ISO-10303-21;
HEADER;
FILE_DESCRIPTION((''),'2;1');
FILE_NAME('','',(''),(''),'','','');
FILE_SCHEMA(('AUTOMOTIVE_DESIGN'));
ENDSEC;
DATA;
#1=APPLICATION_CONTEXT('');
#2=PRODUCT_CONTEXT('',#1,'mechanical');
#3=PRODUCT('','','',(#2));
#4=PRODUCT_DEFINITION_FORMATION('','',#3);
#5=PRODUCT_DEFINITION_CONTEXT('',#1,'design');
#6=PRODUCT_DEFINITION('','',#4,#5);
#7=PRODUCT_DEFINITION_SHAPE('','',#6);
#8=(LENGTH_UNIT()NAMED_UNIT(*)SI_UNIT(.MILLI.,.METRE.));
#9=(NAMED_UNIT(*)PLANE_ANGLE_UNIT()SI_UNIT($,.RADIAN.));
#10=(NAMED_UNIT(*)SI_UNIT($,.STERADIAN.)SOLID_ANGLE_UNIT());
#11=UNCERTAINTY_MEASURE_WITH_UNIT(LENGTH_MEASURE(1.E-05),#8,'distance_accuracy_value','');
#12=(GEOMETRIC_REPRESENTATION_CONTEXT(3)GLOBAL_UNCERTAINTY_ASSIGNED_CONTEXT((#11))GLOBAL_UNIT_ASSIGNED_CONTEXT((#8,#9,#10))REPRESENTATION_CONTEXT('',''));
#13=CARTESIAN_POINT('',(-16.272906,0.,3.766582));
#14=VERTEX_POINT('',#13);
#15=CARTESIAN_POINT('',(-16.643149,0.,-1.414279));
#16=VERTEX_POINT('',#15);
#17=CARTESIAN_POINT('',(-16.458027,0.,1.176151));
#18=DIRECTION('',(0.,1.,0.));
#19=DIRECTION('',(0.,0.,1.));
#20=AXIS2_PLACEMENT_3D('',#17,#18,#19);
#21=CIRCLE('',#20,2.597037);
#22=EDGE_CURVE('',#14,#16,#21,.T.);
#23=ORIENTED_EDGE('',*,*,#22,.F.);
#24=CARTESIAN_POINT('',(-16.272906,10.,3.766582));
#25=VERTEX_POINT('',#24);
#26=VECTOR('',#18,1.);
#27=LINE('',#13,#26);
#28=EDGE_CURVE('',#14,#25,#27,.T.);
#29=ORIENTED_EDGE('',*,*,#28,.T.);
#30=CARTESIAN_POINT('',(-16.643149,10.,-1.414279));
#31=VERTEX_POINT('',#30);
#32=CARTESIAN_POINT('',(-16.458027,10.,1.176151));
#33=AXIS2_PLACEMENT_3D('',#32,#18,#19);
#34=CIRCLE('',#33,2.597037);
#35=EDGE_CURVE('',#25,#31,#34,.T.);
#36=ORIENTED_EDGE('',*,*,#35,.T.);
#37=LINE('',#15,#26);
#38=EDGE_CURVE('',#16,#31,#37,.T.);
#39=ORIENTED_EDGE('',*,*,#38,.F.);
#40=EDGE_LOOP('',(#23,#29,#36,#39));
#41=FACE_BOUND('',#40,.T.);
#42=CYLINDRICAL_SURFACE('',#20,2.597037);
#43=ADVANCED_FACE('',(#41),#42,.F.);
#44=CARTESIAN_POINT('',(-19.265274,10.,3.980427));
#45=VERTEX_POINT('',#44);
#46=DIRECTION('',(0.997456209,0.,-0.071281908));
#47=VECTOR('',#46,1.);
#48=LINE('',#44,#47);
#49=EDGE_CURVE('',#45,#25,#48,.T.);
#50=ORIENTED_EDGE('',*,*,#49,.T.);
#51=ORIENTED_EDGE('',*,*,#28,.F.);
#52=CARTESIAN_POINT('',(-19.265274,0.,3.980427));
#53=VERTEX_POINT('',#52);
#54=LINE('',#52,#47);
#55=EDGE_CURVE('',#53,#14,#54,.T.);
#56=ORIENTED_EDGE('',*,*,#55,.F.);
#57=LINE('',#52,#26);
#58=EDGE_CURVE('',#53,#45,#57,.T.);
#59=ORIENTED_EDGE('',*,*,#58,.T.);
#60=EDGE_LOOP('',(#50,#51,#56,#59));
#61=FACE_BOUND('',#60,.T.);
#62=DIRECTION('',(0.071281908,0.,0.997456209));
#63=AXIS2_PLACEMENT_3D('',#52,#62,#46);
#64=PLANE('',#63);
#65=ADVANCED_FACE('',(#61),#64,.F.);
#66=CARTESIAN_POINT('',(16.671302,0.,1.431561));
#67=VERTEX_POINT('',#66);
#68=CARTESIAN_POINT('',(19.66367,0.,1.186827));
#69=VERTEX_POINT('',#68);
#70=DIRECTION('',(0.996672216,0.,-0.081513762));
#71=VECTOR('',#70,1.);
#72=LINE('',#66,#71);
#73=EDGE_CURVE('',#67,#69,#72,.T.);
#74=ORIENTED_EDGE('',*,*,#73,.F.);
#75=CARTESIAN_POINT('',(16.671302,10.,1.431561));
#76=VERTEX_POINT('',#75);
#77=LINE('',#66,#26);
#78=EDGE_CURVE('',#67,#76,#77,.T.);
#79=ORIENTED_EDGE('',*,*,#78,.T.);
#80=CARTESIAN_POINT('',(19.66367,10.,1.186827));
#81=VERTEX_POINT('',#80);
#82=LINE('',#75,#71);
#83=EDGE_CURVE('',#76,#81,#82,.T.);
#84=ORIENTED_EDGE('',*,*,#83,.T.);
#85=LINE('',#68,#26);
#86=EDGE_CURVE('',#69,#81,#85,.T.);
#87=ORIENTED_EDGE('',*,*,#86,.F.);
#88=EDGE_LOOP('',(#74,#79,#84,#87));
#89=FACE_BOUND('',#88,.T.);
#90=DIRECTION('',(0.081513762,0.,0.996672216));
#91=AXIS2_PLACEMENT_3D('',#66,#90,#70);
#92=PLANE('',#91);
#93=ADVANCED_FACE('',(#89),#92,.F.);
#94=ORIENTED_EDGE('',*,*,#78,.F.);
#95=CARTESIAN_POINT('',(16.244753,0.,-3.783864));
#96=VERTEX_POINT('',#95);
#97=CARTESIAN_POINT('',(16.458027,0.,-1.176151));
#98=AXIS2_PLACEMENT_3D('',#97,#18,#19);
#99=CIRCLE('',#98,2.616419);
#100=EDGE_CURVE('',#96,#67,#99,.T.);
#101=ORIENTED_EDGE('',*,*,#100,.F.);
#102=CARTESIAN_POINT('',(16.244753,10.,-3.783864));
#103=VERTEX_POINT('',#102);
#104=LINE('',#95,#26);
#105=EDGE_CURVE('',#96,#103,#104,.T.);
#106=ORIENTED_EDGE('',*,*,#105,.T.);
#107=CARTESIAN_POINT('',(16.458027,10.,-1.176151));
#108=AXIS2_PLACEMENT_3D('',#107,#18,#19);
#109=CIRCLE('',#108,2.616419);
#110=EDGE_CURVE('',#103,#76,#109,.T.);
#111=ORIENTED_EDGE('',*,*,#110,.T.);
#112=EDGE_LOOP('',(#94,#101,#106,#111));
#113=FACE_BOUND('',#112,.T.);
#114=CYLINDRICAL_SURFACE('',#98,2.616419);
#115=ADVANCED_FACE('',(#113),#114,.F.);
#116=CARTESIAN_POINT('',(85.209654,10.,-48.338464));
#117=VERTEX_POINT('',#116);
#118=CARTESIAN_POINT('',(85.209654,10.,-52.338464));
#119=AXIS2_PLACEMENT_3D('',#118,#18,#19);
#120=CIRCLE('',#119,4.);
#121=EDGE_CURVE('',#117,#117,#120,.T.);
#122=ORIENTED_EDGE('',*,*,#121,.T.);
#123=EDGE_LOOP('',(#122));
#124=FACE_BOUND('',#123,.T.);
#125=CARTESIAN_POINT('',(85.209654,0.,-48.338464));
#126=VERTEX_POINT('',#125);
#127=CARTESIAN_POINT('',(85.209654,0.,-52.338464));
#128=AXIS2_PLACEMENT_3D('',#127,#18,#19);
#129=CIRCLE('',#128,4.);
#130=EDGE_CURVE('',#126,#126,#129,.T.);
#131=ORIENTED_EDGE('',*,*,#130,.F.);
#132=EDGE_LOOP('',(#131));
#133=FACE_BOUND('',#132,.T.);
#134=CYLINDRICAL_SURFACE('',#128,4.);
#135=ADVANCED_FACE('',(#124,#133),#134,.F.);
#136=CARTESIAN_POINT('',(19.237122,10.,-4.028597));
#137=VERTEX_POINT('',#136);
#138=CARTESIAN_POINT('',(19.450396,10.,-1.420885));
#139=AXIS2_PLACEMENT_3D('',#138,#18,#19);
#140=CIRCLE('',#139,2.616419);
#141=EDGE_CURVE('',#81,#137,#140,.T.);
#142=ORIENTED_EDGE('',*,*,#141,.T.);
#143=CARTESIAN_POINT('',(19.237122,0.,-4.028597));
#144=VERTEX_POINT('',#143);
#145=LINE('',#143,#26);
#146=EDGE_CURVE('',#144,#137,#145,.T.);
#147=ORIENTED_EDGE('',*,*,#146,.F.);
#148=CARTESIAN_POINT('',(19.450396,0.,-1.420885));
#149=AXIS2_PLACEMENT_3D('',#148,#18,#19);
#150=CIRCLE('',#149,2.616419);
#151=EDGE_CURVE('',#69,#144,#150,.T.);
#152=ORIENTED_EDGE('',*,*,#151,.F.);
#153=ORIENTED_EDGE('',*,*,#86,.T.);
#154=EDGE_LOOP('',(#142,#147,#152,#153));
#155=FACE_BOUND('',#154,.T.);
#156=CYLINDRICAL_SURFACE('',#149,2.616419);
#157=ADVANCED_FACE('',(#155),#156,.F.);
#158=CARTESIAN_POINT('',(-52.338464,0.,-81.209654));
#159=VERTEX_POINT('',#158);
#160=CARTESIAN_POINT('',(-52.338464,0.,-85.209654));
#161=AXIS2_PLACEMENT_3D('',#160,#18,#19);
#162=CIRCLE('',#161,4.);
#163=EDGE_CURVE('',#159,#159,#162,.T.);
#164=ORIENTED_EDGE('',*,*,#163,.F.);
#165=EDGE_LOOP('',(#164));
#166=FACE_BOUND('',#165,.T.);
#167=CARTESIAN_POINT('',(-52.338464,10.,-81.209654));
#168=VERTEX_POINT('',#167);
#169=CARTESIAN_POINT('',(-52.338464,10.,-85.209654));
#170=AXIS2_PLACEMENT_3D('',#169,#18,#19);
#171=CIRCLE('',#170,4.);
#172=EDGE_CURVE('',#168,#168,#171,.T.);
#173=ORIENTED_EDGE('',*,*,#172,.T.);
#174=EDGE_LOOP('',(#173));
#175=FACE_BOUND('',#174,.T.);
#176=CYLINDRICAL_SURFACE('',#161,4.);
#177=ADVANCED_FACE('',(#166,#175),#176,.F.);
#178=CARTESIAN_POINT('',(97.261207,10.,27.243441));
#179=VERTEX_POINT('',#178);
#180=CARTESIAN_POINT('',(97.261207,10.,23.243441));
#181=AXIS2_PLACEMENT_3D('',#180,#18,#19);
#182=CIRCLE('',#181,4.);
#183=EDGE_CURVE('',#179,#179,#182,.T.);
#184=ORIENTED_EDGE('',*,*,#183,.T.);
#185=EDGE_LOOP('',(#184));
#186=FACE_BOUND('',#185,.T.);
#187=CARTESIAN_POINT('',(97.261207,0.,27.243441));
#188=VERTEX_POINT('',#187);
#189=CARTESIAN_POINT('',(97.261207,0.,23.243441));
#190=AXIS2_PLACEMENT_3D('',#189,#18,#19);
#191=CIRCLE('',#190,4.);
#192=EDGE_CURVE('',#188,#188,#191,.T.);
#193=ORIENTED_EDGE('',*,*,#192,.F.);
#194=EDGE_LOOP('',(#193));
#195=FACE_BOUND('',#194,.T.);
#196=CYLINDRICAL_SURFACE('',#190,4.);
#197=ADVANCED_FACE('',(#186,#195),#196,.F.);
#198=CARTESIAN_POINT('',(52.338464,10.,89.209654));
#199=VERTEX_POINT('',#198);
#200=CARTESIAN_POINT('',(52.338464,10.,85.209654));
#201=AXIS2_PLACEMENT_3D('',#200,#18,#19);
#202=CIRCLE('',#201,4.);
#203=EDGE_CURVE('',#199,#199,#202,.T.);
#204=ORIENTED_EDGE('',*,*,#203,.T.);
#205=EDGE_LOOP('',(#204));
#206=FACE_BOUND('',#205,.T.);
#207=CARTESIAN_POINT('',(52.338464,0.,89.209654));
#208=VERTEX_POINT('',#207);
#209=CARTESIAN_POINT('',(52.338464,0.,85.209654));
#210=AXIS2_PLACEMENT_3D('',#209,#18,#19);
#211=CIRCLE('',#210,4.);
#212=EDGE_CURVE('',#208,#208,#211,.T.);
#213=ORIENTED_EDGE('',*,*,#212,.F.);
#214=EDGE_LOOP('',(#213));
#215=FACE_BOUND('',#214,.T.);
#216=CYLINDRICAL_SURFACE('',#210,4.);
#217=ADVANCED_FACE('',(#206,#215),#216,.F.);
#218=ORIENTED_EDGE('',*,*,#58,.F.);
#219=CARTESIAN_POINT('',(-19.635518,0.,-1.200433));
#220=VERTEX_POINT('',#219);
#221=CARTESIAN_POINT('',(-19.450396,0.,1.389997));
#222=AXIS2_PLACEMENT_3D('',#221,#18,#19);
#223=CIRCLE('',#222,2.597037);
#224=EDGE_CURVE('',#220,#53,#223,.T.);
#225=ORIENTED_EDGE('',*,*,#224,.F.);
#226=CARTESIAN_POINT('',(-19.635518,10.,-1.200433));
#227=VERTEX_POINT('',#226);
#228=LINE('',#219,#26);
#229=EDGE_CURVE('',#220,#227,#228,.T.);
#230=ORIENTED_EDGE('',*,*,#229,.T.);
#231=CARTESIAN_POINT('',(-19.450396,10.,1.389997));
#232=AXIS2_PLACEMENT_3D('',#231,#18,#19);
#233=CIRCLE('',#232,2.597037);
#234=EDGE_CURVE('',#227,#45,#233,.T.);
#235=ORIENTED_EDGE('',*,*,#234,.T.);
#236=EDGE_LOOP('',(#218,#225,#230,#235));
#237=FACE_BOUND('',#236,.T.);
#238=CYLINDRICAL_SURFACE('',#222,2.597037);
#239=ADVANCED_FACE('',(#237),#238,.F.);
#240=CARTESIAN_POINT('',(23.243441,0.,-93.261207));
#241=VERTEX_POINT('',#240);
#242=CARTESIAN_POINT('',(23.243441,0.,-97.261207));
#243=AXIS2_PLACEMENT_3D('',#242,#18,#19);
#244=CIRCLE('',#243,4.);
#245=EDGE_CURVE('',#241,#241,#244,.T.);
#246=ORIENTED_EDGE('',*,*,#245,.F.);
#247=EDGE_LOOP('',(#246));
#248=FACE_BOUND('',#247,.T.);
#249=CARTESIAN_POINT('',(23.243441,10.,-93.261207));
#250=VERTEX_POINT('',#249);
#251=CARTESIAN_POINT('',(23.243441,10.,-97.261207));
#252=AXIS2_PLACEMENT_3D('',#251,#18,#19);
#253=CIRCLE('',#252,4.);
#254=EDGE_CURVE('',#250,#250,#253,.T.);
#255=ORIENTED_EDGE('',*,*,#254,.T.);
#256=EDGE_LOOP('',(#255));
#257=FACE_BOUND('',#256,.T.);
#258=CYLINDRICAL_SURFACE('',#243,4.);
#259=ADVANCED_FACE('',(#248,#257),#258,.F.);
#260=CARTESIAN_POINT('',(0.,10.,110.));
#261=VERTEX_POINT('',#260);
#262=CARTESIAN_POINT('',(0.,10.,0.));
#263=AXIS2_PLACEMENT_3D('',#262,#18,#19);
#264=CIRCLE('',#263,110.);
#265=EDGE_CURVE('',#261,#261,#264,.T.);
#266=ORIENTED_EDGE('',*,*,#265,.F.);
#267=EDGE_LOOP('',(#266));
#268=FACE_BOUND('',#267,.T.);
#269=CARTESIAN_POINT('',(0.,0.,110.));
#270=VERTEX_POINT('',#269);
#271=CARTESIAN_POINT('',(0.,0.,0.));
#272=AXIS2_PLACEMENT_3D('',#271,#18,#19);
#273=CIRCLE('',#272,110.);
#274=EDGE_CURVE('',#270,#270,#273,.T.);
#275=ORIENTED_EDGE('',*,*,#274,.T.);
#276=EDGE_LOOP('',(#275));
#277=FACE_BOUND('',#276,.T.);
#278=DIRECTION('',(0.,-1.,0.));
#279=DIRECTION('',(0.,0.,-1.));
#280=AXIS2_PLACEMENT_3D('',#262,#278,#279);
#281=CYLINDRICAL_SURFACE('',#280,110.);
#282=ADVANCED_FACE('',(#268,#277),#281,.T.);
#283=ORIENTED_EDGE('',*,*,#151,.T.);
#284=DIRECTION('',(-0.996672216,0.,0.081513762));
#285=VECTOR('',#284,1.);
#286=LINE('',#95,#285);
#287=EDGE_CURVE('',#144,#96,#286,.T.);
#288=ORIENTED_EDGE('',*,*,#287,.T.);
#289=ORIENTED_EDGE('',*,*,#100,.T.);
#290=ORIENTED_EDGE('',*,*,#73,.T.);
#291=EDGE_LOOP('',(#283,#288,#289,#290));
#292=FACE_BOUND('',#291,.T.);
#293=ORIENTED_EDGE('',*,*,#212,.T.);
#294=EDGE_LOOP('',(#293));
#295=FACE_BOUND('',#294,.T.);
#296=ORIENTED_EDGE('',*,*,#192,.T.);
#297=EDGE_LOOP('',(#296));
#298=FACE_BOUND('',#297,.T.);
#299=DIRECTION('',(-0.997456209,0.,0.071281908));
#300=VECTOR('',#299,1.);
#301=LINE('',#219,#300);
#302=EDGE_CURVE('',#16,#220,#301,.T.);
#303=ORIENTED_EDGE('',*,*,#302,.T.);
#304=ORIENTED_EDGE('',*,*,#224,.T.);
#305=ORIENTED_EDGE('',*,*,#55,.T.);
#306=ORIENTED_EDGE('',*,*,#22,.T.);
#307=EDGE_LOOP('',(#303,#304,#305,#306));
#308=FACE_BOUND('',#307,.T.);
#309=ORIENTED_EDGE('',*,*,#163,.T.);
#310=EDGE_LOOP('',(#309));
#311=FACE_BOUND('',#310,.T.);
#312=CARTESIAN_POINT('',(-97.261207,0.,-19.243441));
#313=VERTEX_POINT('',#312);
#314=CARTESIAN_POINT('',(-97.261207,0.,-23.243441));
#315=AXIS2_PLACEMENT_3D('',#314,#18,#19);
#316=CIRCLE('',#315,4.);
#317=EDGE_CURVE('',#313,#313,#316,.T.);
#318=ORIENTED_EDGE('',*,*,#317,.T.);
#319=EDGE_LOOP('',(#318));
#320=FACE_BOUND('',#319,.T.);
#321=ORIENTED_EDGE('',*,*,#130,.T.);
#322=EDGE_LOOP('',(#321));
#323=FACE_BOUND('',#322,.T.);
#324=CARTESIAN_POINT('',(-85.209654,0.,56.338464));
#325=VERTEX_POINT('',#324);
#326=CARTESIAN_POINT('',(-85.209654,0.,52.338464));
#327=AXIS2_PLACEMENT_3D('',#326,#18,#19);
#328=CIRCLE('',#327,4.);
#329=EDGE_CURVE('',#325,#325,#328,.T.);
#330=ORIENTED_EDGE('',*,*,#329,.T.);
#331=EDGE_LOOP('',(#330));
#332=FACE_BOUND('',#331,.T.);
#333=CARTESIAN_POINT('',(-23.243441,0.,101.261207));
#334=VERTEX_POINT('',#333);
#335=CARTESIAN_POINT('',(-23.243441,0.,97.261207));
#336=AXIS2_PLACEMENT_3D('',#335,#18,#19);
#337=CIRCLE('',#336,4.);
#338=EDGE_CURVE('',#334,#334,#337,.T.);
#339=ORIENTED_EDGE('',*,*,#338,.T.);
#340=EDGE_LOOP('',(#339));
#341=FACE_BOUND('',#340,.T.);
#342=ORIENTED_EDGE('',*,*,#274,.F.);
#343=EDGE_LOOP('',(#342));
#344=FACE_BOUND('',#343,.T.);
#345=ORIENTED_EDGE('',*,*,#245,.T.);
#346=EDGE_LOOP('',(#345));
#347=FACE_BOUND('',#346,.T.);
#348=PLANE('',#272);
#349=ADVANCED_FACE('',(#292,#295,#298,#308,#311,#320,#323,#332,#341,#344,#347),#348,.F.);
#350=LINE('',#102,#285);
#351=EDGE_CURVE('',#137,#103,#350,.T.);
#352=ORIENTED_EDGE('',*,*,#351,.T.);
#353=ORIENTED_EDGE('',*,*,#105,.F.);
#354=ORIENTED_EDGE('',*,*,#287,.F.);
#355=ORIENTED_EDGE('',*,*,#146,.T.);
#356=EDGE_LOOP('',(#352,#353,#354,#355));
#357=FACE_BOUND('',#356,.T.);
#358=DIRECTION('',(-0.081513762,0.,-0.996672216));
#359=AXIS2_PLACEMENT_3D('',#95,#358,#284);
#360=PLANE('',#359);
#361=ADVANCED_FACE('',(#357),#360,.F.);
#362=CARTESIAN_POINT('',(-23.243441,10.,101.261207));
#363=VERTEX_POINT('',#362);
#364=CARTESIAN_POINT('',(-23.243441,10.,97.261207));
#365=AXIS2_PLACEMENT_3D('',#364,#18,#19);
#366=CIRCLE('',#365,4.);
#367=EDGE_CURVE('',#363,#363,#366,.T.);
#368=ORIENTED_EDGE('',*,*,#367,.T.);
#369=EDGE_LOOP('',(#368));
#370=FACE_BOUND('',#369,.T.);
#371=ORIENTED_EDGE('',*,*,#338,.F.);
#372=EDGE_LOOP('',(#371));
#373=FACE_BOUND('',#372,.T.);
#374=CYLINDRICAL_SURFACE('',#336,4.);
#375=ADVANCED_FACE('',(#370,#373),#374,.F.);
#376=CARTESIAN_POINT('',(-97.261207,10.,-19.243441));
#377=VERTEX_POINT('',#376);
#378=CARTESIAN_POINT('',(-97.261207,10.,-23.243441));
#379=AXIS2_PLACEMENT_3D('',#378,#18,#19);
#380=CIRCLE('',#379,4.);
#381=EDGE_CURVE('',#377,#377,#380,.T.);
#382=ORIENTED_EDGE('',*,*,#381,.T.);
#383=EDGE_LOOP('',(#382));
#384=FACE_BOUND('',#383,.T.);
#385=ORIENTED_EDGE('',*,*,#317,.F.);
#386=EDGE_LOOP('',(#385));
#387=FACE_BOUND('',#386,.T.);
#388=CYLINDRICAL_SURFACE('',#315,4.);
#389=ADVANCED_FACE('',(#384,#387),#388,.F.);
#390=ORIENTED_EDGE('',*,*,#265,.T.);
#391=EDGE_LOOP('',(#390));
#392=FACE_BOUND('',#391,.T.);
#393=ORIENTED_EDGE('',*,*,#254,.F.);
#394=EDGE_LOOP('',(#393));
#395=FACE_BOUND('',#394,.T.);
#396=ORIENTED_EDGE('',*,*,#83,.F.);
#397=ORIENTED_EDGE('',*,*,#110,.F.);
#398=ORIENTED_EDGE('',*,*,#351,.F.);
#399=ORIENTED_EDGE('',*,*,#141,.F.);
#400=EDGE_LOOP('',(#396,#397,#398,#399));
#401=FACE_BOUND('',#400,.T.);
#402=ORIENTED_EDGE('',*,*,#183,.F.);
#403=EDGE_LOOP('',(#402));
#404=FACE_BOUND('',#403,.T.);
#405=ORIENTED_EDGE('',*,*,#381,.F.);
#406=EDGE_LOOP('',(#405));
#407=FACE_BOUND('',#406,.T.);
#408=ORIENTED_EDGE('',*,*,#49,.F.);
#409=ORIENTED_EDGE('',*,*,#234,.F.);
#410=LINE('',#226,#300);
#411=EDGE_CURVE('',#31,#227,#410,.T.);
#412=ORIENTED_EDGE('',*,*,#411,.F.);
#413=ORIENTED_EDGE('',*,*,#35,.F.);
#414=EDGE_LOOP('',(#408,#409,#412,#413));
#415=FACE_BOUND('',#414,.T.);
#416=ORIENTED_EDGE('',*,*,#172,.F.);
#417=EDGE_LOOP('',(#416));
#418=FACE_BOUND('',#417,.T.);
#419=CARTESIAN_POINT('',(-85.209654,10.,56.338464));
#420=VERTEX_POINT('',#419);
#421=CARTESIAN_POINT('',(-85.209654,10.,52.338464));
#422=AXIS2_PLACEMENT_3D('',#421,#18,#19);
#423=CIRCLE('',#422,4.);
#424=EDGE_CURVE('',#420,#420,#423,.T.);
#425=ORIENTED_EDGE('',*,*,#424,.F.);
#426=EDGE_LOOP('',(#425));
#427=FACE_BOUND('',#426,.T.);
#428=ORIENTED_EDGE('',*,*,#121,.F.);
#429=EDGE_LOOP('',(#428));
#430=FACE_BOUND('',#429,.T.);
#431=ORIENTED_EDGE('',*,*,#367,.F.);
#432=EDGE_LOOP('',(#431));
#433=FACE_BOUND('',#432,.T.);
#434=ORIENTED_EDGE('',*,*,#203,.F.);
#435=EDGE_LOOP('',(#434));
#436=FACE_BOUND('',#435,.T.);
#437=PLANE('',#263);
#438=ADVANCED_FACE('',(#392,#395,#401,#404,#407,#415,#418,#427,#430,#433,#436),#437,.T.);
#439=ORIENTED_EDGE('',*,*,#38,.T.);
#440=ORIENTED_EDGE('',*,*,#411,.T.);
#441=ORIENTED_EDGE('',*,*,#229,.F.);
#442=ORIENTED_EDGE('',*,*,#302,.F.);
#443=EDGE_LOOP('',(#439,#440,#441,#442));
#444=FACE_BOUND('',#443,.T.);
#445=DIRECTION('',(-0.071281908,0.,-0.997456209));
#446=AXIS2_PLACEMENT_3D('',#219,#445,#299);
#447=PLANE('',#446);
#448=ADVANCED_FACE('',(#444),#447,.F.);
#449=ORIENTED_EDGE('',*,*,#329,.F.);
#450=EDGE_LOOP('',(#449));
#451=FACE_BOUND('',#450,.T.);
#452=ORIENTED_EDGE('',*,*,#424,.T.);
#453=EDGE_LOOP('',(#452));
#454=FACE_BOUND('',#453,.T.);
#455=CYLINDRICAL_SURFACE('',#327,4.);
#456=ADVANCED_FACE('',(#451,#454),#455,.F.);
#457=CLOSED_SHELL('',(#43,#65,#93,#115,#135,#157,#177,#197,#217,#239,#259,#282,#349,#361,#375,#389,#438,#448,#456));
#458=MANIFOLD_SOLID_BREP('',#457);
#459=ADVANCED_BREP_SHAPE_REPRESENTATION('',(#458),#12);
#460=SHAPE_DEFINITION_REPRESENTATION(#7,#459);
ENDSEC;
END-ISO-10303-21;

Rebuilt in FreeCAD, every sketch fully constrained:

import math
import FreeCAD as App
import Part
import Sketcher
from FreeCAD import Vector

doc = App.newDocument("Part")
body = doc.addObject("PartDesign::Body", "Body")

sketch1 = body.newObject("Sketcher::SketchObject", "Sketch")
sketch1.AttachmentSupport = (doc.getObject("XZ_Plane"), [""])
sketch1.MapMode = "FlatFace"
sketch1.addGeometry(Part.Circle(Vector(0, 0, 0), Vector(0, 0, 1), 110), False)
sketch1.addConstraint([
    Sketcher.Constraint("Coincident", 0, 3, -1, 1),
    Sketcher.Constraint("Diameter", 0, 220.0),
])
pad1 = body.newObject("PartDesign::Pad", "Pad")
pad1.Profile = sketch1
pad1.Length = 10
pad1.Reversed = True

sketch2 = body.newObject("Sketcher::SketchObject", "Sketch001")
sketch2.AttachmentSupport = (doc.getObject("XZ_Plane"), [""])
sketch2.MapMode = "FlatFace"
sketch2.AttachmentOffset = App.Placement(Vector(0, 0, -10), App.Rotation())
sketch2.addGeometry([
    Part.LineSegment(Vector(-16.6, -1.4, 0), Vector(-19.6, -1.2, 0)),
    Part.ArcOfCircle(Part.Circle(Vector(-19.5, 1.4, 0), Vector(0, 0, 1), 2.6), math.radians(86), math.radians(266)),
    Part.LineSegment(Vector(-19.3, 4, 0), Vector(-16.3, 3.8, 0)),
    Part.ArcOfCircle(Part.Circle(Vector(-16.5, 1.2, 0), Vector(0, 0, 1), 2.6), math.radians(-94), math.radians(86)),
    Part.LineSegment(Vector(19.2, -4, 0), Vector(16.2, -3.8, 0)),
    Part.ArcOfCircle(Part.Circle(Vector(16.5, -1.2, 0), Vector(0, 0, 1), 2.6), math.radians(85), math.radians(265)),
    Part.LineSegment(Vector(16.7, 1.4, 0), Vector(19.7, 1.2, 0)),
    Part.ArcOfCircle(Part.Circle(Vector(19.5, -1.4, 0), Vector(0, 0, 1), 2.6), math.radians(-95), math.radians(85)),
], False)
sketch2.addConstraint([
    Sketcher.Constraint("Tangent", 0, 2, 1, 2),
    Sketcher.Constraint("Tangent", 1, 1, 2, 1),
    Sketcher.Constraint("Tangent", 2, 2, 3, 2),
    Sketcher.Constraint("Tangent", 3, 1, 0, 1),
    Sketcher.Constraint("Tangent", 4, 2, 5, 2),
    Sketcher.Constraint("Tangent", 5, 1, 6, 1),
    Sketcher.Constraint("Tangent", 6, 2, 7, 2),
    Sketcher.Constraint("Tangent", 7, 1, 4, 1),
    Sketcher.Constraint("Equal", 1, 3),
    Sketcher.Constraint("Equal", 5, 7),
    Sketcher.Constraint("Symmetric", 3, 3, 5, 3, -1, 1),
    Sketcher.Constraint("Distance", 0, 3.0),
    Sketcher.Constraint("Radius", 5, 2.616419),
    Sketcher.Constraint("Radius", 1, 2.597037),
    Sketcher.Constraint("DistanceX", -1, 1, 5, 1, 16.671302),
    Sketcher.Constraint("DistanceX", 1, 1, 5, 3, 35.723302),
    Sketcher.Constraint("Distance", 4, 3.00236),
    Sketcher.Constraint("DistanceY", -1, 1, 3, 3, 1.176151),
    Sketcher.Constraint("DistanceY", -1, 1, 2, 2, 3.766582),
])
pocket1 = body.newObject("PartDesign::Pocket", "Pocket")
pocket1.Profile = sketch2
pocket1.Type = "ThroughAll"
pocket1.Reversed = True

sketch3 = body.newObject("Sketcher::SketchObject", "Sketch002")
sketch3.AttachmentSupport = (doc.getObject("XZ_Plane"), [""])
sketch3.MapMode = "FlatFace"
sketch3.AttachmentOffset = App.Placement(Vector(0, 0, -10), App.Rotation())
sketch3.addGeometry([
    Part.Circle(Vector(-85.2, 52.3, 0), Vector(0, 0, 1), 4),
    Part.Circle(Vector(-97.3, -23.2, 0), Vector(0, 0, 1), 4),
    Part.Circle(Vector(-52.3, -85.2, 0), Vector(0, 0, 1), 4),
    Part.Circle(Vector(23.2, -97.3, 0), Vector(0, 0, 1), 4),
    Part.Circle(Vector(85.2, -52.3, 0), Vector(0, 0, 1), 4),
    Part.Circle(Vector(97.3, 23.2, 0), Vector(0, 0, 1), 4),
    Part.Circle(Vector(52.3, 85.2, 0), Vector(0, 0, 1), 4),
    Part.Circle(Vector(-23.2, 97.3, 0), Vector(0, 0, 1), 4),
], False)
sketch3.addConstraint([
    Sketcher.Constraint("Equal", 0, 1),
    Sketcher.Constraint("Equal", 1, 2),
    Sketcher.Constraint("Equal", 2, 3),
    Sketcher.Constraint("Equal", 3, 4),
    Sketcher.Constraint("Equal", 4, 5),
    Sketcher.Constraint("Equal", 5, 6),
    Sketcher.Constraint("Equal", 6, 7),
    Sketcher.Constraint("Symmetric", 0, 3, 4, 3, -1, 1),
    Sketcher.Constraint("Symmetric", 1, 3, 5, 3, -1, 1),
    Sketcher.Constraint("Symmetric", 2, 3, 6, 3, -1, 1),
    Sketcher.Constraint("Symmetric", 3, 3, 7, 3, -1, 1),
    Sketcher.Constraint("Diameter", 0, 8.0),
    Sketcher.Constraint("DistanceY", 1, 3, -1, 1, 23.243441),
    Sketcher.Constraint("DistanceX", -1, 1, 3, 3, 23.243441),
    Sketcher.Constraint("DistanceX", 0, 3, 2, 3, 32.87119),
    Sketcher.Constraint("DistanceY", 2, 3, 0, 3, 137.548118),
    Sketcher.Constraint("DistanceX", 1, 3, 3, 3, 120.504649),
    Sketcher.Constraint("DistanceY", 3, 3, 0, 3, 149.599671),
    Sketcher.Constraint("DistanceX", 2, 3, 4, 3, 137.548118),
    Sketcher.Constraint("DistanceY", 2, 3, 4, 3, 32.87119),
])
pocket2 = body.newObject("PartDesign::Pocket", "Pocket001")
pocket2.Profile = sketch3
pocket2.Type = "ThroughAll"
pocket2.Reversed = True

doc.recompute()
